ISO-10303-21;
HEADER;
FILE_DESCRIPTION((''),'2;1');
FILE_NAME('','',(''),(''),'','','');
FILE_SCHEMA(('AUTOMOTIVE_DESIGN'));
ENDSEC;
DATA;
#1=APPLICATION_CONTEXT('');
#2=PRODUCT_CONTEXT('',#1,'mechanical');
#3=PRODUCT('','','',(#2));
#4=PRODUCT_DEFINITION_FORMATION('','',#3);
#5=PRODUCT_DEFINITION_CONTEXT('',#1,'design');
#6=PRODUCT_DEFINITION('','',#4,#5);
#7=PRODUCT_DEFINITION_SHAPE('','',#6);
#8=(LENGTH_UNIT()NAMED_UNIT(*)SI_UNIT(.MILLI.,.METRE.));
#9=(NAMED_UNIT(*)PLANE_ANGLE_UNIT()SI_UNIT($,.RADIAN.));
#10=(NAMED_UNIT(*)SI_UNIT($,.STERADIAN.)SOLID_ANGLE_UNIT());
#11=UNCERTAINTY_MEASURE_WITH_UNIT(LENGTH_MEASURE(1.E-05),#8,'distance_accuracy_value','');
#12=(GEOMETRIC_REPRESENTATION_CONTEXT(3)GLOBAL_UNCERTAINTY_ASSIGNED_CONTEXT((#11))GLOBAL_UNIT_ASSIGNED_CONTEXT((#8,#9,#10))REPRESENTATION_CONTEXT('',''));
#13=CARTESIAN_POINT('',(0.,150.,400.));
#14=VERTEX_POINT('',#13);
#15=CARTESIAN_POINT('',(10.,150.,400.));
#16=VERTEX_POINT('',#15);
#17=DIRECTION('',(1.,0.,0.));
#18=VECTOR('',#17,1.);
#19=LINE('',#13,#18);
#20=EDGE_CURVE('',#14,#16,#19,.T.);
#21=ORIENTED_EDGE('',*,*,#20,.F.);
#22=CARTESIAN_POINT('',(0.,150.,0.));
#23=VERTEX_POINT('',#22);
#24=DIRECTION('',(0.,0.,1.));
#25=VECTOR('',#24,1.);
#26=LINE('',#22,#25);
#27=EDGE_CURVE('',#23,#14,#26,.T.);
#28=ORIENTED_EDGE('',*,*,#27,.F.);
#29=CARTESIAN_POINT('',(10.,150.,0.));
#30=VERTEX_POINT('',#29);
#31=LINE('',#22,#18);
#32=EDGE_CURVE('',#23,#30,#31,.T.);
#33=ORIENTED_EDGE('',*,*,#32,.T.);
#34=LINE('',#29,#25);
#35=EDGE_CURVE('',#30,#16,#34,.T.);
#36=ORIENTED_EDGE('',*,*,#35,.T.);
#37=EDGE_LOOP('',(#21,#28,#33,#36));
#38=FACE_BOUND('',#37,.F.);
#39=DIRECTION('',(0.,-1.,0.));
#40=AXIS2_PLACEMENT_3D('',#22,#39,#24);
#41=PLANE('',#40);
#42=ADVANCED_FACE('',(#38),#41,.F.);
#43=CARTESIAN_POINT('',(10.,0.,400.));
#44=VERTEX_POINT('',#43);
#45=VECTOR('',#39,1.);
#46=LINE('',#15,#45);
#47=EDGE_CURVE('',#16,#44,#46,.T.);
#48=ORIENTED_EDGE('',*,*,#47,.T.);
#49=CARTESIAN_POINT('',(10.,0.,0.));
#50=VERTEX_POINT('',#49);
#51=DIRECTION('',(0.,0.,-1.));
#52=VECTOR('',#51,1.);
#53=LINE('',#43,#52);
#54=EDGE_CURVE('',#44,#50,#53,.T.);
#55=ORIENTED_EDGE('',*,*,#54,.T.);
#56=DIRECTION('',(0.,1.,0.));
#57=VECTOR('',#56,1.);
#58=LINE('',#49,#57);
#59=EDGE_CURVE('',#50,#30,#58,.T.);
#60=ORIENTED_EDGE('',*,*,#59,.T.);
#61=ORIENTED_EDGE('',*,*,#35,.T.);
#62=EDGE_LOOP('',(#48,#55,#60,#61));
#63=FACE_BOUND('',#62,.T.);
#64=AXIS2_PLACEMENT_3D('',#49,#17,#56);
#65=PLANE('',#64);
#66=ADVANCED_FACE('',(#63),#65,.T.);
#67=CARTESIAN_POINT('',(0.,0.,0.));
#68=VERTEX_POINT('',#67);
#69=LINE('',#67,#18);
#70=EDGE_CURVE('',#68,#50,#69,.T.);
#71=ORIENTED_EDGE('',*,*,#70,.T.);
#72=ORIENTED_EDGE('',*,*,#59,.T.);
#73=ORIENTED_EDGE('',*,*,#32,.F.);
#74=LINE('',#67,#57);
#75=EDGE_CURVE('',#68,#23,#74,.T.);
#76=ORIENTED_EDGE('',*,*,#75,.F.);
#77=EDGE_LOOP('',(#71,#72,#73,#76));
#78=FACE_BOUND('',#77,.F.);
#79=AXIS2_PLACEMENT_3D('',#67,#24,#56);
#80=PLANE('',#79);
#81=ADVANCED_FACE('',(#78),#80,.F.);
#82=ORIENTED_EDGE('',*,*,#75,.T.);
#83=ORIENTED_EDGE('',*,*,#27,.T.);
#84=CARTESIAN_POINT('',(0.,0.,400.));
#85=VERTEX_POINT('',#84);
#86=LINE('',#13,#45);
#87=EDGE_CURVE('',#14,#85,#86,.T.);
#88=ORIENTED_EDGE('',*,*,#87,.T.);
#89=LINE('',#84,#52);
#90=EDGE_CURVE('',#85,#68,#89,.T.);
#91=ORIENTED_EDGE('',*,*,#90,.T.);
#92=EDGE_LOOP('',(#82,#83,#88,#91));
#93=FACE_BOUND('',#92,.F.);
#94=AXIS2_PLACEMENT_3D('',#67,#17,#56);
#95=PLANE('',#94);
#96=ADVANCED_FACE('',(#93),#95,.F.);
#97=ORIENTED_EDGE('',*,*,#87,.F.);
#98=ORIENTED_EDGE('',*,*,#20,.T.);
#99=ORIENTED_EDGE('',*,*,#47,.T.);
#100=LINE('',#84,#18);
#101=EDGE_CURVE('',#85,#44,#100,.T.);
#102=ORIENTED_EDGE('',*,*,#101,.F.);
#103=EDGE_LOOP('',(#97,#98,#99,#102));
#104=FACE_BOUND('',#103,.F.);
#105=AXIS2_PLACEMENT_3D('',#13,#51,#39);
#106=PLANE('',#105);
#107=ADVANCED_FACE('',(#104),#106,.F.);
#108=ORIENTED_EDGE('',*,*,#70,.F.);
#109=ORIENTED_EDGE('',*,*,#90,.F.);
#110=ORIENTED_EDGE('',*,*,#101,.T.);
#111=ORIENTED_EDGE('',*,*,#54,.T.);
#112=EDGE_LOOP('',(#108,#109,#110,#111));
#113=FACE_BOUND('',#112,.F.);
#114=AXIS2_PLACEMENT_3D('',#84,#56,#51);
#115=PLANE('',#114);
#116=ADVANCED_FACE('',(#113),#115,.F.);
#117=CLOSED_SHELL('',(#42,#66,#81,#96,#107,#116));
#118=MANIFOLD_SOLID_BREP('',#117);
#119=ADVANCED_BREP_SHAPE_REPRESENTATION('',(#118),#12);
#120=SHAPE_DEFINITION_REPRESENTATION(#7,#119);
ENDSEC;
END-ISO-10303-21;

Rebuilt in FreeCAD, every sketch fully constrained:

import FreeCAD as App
import Part
import Sketcher


def add_polygon(sketch, points):
    """Adds a closed chain of lines whose ends are joined by coincident constraints."""
    first, n = sketch.GeometryCount, len(points)
    for a, b in zip(points, points[1:] + points[:1]):
        sketch.addGeometry(Part.LineSegment(App.Vector(*a, 0), App.Vector(*b, 0)), False)
    for i in range(n):
        sketch.addConstraint(Sketcher.Constraint("Coincident", first + i, 2, first + (i + 1) % n, 1))

doc = App.newDocument("Part")
params = doc.addObject("Spreadsheet::Sheet", "Params")
for row, (alias, value) in enumerate([
    ("sketch1_width", "150 mm"),
    ("sketch1_height", "400 mm"),
    ("pad1_length", "10 mm"),
], start=1):
    params.set(f"A{row}", alias)
    params.set(f"B{row}", "=" + value)
    params.setAlias(f"B{row}", alias)

body = doc.addObject("PartDesign::Body", "Body")

sketch1 = body.newObject("Sketcher::SketchObject", "Sketch")
sketch1.AttachmentSupport = (doc.getObject("YZ_Plane"), [""])
sketch1.MapMode = "FlatFace"
add_polygon(sketch1, [(0, 400), (0, 0), (150, 0), (150, 400)])
sketch1.addConstraint([
    Sketcher.Constraint("Vertical", 0),
    Sketcher.Constraint("Horizontal", 1),
    Sketcher.Constraint("Vertical", 2),
    Sketcher.Constraint("Horizontal", 3),
    Sketcher.Constraint("Coincident", 0, 2, -1, 1),
    Sketcher.Constraint("DistanceX", 1, 1, 1, 2, 150.0),
    Sketcher.Constraint("DistanceY", 0, 2, 0, 1, 400.0),
])
sketch1.setExpression("Constraints[9]", "Params.sketch1_width")
sketch1.setExpression("Constraints[10]", "Params.sketch1_height")
pad1 = body.newObject("PartDesign::Pad", "Pad")
pad1.Profile = sketch1
pad1.setExpression("Length", "Params.pad1_length")

doc.recompute()
